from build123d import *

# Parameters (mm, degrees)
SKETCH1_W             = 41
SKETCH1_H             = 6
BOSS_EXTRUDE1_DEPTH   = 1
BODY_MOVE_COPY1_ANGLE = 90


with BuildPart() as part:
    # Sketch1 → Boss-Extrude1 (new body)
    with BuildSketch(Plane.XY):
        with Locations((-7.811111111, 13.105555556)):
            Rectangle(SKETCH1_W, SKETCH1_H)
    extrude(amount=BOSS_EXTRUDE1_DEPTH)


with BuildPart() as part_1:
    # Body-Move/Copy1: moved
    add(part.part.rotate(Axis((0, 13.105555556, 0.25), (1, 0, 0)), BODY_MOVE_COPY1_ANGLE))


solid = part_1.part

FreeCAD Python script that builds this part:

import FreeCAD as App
import Part
import Sketcher
Q = App.Units.Quantity

doc = App.newDocument("Part")
body = doc.addObject("PartDesign::Body", "Body")

# Sketch on XY plane
sketch1 = doc.addObject("Sketcher::SketchObject", "Sketch")
body.addObject(sketch1)
sketch1.AttachmentSupport = (doc.XY_Plane, [""])
sketch1.MapMode = "FlatFace"
sketch1.addGeometry([
    Part.LineSegment(App.Vector(-28, 16, 0), App.Vector(-28, 10, 0)),
    Part.LineSegment(App.Vector(-28, 10, 0), App.Vector(13, 10, 0)),
    Part.LineSegment(App.Vector(13, 10, 0), App.Vector(13, 16, 0)),
    Part.LineSegment(App.Vector(13, 16, 0), App.Vector(-28, 16, 0)),
], False)
sketch1.addConstraint([
    Sketcher.Constraint("Coincident", 0, 2, 1, 1),
    Sketcher.Constraint("Coincident", 1, 2, 2, 1),
    Sketcher.Constraint("Coincident", 2, 2, 3, 1),
    Sketcher.Constraint("Coincident", 3, 2, 0, 1),
    Sketcher.Constraint("Vertical", 0),
    Sketcher.Constraint("Horizontal", 1),
    Sketcher.Constraint("Vertical", 2),
    Sketcher.Constraint("Horizontal", 3),
    Sketcher.Constraint("DistanceX", 1, 1, 1, 2, Q("41 mm")),
    Sketcher.Constraint("DistanceY", 0, 2, 0, 1, Q("6 mm")),
    Sketcher.Constraint("DistanceX", 0, 2, -1, 1, Q("28.311111 mm")),
    Sketcher.Constraint("DistanceY", -1, 1, 0, 2, Q("10.105556 mm")),
])
pad1 = doc.addObject("PartDesign::Pad", "Pad")
body.addObject(pad1)
pad1.Profile = sketch1
pad1.Length = 1
body2 = doc.addObject("PartDesign::Body", "Body001")
doc.recompute()

body.Placement = App.Placement(App.Vector(0, 13.355556, -12.855556), App.Rotation(App.Vector(1, 0, 0), 90))
boolean = doc.addObject("PartDesign::Boolean", "Boolean")
body2.addObject(boolean)
boolean.Type = "Fuse"
boolean.addObjects([body])

doc.recompute()
